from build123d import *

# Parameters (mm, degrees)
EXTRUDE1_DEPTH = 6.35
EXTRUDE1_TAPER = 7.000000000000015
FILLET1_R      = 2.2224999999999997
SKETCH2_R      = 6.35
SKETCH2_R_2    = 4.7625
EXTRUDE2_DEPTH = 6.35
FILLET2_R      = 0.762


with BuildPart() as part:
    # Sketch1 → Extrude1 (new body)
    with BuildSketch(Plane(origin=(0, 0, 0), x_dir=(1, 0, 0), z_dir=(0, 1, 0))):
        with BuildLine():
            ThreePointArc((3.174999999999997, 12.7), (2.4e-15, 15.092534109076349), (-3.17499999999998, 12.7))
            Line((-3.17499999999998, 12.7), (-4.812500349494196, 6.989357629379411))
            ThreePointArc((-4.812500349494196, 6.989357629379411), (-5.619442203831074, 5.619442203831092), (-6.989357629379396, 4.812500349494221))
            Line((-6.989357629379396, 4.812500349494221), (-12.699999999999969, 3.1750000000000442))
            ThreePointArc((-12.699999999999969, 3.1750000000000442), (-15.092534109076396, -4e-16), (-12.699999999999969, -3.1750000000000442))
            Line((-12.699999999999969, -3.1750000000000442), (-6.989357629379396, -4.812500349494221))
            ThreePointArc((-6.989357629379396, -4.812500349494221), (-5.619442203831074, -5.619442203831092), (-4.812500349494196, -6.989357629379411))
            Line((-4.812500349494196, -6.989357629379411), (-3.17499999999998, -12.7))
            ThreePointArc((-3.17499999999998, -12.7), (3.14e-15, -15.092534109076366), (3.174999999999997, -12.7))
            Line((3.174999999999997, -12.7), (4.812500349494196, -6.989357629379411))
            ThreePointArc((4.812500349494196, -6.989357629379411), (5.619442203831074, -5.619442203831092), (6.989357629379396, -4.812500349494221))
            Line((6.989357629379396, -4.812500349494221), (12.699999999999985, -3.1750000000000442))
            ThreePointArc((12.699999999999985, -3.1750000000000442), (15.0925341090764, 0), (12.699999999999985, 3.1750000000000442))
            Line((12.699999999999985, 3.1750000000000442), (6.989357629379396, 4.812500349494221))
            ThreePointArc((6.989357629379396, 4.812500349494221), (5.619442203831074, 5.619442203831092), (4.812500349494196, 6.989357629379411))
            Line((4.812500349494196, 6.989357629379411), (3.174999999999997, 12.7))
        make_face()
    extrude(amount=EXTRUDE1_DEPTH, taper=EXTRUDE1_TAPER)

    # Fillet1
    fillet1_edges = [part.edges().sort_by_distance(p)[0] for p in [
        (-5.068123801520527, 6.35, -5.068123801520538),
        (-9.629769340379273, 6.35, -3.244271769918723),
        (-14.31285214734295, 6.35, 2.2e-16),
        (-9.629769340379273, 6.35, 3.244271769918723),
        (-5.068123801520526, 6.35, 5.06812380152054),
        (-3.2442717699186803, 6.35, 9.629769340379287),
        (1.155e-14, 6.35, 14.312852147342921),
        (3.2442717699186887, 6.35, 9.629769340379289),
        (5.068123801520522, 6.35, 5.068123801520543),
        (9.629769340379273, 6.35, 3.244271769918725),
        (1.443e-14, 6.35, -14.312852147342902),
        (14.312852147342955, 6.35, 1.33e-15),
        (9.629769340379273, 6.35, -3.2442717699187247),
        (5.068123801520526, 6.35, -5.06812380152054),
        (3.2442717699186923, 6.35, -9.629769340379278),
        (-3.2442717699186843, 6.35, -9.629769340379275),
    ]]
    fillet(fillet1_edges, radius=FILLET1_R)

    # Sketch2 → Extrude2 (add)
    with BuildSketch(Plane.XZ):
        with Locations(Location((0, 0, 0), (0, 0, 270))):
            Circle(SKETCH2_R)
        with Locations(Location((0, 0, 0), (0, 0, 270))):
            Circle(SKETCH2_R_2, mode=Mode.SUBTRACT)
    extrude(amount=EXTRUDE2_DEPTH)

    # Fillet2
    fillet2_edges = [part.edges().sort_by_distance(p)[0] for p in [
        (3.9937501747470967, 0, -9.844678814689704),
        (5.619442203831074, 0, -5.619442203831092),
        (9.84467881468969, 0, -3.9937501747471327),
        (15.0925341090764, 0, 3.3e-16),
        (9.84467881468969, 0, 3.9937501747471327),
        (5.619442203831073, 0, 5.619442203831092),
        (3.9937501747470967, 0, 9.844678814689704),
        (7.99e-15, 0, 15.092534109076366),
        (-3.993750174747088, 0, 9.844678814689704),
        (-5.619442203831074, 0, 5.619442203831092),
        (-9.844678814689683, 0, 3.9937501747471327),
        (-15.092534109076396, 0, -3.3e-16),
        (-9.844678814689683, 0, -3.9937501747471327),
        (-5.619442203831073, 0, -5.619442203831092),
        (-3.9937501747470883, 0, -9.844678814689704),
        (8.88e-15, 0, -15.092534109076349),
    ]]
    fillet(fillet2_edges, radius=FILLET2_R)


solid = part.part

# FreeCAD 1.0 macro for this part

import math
import FreeCAD as App
import Part
import Sketcher
Q = App.Units.Quantity


def edges_at(feature, points):
    """Names of the edges that pass closest to the given points."""
    edges = feature.Shape.Edges
    near = lambda p: min(range(len(edges)), key=lambda i: edges[i].distToShape(Part.Vertex(*p))[0])
    return sorted({f"Edge{near(p) + 1}" for p in points})

doc = App.newDocument("Part")
body = doc.addObject("PartDesign::Body", "Body")

# Sketch on XZ plane
sketch1 = body.newObject("Sketcher::SketchObject", "Sketch")
sketch1.AttachmentSupport = (doc.getObject("XZ_Plane"), [""])
sketch1.MapMode = "FlatFace"
sketch1.addGeometry([
    Part.ArcOfCircle(Part.Circle(App.Vector(0, -11.8, 0), App.Vector(0, 0, 1), 3.3), math.radians(-164), math.radians(-16)),  # 0
    Part.LineSegment(App.Vector(-3.2, -12.7, 0), App.Vector(-4.8, -7, 0)),  # 1
    Part.ArcOfCircle(Part.Circle(App.Vector(-7.9, -7.9, 0), App.Vector(0, 0, 1), 3.2), math.radians(16), math.radians(74)),  # 2
    Part.LineSegment(App.Vector(-7, -4.8, 0), App.Vector(-12.7, -3.2, 0)),  # 3
    Part.ArcOfCircle(Part.Circle(App.Vector(-11.8, 0, 0), App.Vector(0, 0, 1), 3.3), math.radians(106), math.radians(254)),  # 4
    Part.LineSegment(App.Vector(-12.7, 3.2, 0), App.Vector(-7, 4.8, 0)),  # 5
    Part.ArcOfCircle(Part.Circle(App.Vector(-7.9, 7.9, 0), App.Vector(0, 0, 1), 3.2), math.radians(-74), math.radians(-16)),  # 6
    Part.LineSegment(App.Vector(-4.8, 7, 0), App.Vector(-3.2, 12.7, 0)),  # 7
    Part.ArcOfCircle(Part.Circle(App.Vector(0, 11.8, 0), App.Vector(0, 0, 1), 3.3), math.radians(16), math.radians(164)),  # 8
    Part.LineSegment(App.Vector(3.2, 12.7, 0), App.Vector(4.8, 7, 0)),  # 9
    Part.ArcOfCircle(Part.Circle(App.Vector(7.9, 7.9, 0), App.Vector(0, 0, 1), 3.2), math.radians(-164), math.radians(-106)),  # 10
    Part.LineSegment(App.Vector(7, 4.8, 0), App.Vector(12.7, 3.2, 0)),  # 11
    Part.ArcOfCircle(Part.Circle(App.Vector(11.8, 0, 0), App.Vector(0, 0, 1), 3.3), math.radians(-74), math.radians(74)),  # 12
    Part.LineSegment(App.Vector(12.7, -3.2, 0), App.Vector(7, -4.8, 0)),  # 13
    Part.ArcOfCircle(Part.Circle(App.Vector(7.9, -7.9, 0), App.Vector(0, 0, 1), 3.2), math.radians(106), math.radians(164)),  # 14
    Part.LineSegment(App.Vector(4.8, -7, 0), App.Vector(3.2, -12.7, 0)),  # 15
], False)
sketch1.addConstraint([
    Sketcher.Constraint("Tangent", 0, 1, 1, 1),
    Sketcher.Constraint("Tangent", 1, 2, 2, 1),
    Sketcher.Constraint("Tangent", 2, 2, 3, 1),
    Sketcher.Constraint("Tangent", 3, 2, 4, 2),
    Sketcher.Constraint("Tangent", 4, 1, 5, 1),
    Sketcher.Constraint("Tangent", 5, 2, 6, 1),
    Sketcher.Constraint("Tangent", 6, 2, 7, 1),
    Sketcher.Constraint("Tangent", 7, 2, 8, 2),
    Sketcher.Constraint("Tangent", 8, 1, 9, 1),
    Sketcher.Constraint("Tangent", 9, 2, 10, 1),
    Sketcher.Constraint("Tangent", 10, 2, 11, 1),
    Sketcher.Constraint("Tangent", 11, 2, 12, 2),
    Sketcher.Constraint("Tangent", 12, 1, 13, 1),
    Sketcher.Constraint("Tangent", 13, 2, 14, 1),
    Sketcher.Constraint("Tangent", 14, 2, 15, 1),
    Sketcher.Constraint("Tangent", 15, 2, 0, 2),
    Sketcher.Constraint("Equal", 0, 4),
    Sketcher.Constraint("Equal", 2, 6),
    Sketcher.Constraint("Equal", 4, 8),
    Sketcher.Constraint("Equal", 6, 10),
    Sketcher.Constraint("Equal", 8, 12),
    Sketcher.Constraint("Equal", 10, 14),
    Sketcher.Constraint("Symmetric", 0, 3, 8, 3, -1, 1),
    Sketcher.Constraint("Symmetric", 2, 3, 10, 3, -1, 1),
    Sketcher.Constraint("Symmetric", 4, 3, 12, 3, -1, 1),
    Sketcher.Constraint("Symmetric", 6, 3, 14, 3, -1, 1),
    Sketcher.Constraint("Symmetric", 6, 3, 10, 3, -2),
    Sketcher.Constraint("PointOnObject", 0, 3, -2),
    Sketcher.Constraint("PointOnObject", 4, 3, -1),
    Sketcher.Constraint("Perpendicular", 1, 5),
    Sketcher.Constraint("Equal", 1, 3),
    Sketcher.Constraint("Angle", 1, Q("106 deg")),
    Sketcher.Constraint("Radius", 2, Q("0.125 in")),
    Sketcher.Constraint("DistanceY", 0, 1, -1, 1, Q("0.5 in")),
    Sketcher.Constraint("DistanceY", 3, 2, 4, 1, Q("0.25 in")),
])
pad1 = body.newObject("PartDesign::Pad", "Pad")
pad1.Profile = sketch1
pad1.Length = Q("0.25 in")
pad1.Reversed = True
pad1.TaperAngle = -7
doc.recompute()

fillet = body.newObject("PartDesign::Fillet", "Fillet")
fillet.Base = (pad1, edges_at(pad1, [
    (-5.068, 6.35, -5.068),
    (-9.63, 6.35, -3.244),
    (-14.313, 6.35, 0),
    (-9.63, 6.35, 3.244),
    (-5.068, 6.35, 5.068),
    (-3.244, 6.35, 9.63),
    (0, 6.35, 14.313),
    (3.244, 6.35, 9.63),
    (5.068, 6.35, 5.068),
    (9.63, 6.35, 3.244),
    (0, 6.35, -14.313),
    (14.313, 6.35, 0),
    (9.63, 6.35, -3.244),
    (5.068, 6.35, -5.068),
    (3.244, 6.35, -9.63),
    (-3.244, 6.35, -9.63),
]))
fillet.Radius = Q("0.0875 in")

# Sketch on XZ plane
sketch2 = body.newObject("Sketcher::SketchObject", "Sketch001")
sketch2.AttachmentSupport = (doc.getObject("XZ_Plane"), [""])
sketch2.MapMode = "FlatFace"
sketch2.addGeometry([
    Part.Circle(App.Vector(0, 0, 0), App.Vector(0, 0, 1), 6.3),
    Part.Circle(App.Vector(0, 0, 0), App.Vector(0, 0, 1), 4.8),
], False)
sketch2.addConstraint([
    Sketcher.Constraint("Coincident", 0, 3, -1, 1),
    Sketcher.Constraint("Coincident", 1, 3, -1, 1),
    Sketcher.Constraint("Diameter", 0, Q("0.5 in")),
    Sketcher.Constraint("Diameter", 1, Q("0.375 in")),
])
pad2 = body.newObject("PartDesign::Pad", "Pad001")
pad2.Profile = sketch2
pad2.Length = Q("0.25 in")
doc.recompute()

fillet2 = body.newObject("PartDesign::Fillet", "Fillet001")
fillet2.Base = (pad2, edges_at(pad2, [
    (3.994, 0, -9.845),
    (5.619, 0, -5.619),
    (9.845, 0, -3.994),
    (15.093, 0, 0),
    (9.845, 0, 3.994),
    (5.619, 0, 5.619),
    (3.994, 0, 9.845),
    (0, 0, 15.093),
    (-3.994, 0, 9.845),
    (-5.619, 0, 5.619),
    (-9.845, 0, 3.994),
    (-15.093, 0, 0),
    (-9.845, 0, -3.994),
    (-5.619, 0, -5.619),
    (-3.994, 0, -9.845),
    (0, 0, -15.093),
]))
fillet2.Radius = Q("0.03 in")

doc.recompute()
